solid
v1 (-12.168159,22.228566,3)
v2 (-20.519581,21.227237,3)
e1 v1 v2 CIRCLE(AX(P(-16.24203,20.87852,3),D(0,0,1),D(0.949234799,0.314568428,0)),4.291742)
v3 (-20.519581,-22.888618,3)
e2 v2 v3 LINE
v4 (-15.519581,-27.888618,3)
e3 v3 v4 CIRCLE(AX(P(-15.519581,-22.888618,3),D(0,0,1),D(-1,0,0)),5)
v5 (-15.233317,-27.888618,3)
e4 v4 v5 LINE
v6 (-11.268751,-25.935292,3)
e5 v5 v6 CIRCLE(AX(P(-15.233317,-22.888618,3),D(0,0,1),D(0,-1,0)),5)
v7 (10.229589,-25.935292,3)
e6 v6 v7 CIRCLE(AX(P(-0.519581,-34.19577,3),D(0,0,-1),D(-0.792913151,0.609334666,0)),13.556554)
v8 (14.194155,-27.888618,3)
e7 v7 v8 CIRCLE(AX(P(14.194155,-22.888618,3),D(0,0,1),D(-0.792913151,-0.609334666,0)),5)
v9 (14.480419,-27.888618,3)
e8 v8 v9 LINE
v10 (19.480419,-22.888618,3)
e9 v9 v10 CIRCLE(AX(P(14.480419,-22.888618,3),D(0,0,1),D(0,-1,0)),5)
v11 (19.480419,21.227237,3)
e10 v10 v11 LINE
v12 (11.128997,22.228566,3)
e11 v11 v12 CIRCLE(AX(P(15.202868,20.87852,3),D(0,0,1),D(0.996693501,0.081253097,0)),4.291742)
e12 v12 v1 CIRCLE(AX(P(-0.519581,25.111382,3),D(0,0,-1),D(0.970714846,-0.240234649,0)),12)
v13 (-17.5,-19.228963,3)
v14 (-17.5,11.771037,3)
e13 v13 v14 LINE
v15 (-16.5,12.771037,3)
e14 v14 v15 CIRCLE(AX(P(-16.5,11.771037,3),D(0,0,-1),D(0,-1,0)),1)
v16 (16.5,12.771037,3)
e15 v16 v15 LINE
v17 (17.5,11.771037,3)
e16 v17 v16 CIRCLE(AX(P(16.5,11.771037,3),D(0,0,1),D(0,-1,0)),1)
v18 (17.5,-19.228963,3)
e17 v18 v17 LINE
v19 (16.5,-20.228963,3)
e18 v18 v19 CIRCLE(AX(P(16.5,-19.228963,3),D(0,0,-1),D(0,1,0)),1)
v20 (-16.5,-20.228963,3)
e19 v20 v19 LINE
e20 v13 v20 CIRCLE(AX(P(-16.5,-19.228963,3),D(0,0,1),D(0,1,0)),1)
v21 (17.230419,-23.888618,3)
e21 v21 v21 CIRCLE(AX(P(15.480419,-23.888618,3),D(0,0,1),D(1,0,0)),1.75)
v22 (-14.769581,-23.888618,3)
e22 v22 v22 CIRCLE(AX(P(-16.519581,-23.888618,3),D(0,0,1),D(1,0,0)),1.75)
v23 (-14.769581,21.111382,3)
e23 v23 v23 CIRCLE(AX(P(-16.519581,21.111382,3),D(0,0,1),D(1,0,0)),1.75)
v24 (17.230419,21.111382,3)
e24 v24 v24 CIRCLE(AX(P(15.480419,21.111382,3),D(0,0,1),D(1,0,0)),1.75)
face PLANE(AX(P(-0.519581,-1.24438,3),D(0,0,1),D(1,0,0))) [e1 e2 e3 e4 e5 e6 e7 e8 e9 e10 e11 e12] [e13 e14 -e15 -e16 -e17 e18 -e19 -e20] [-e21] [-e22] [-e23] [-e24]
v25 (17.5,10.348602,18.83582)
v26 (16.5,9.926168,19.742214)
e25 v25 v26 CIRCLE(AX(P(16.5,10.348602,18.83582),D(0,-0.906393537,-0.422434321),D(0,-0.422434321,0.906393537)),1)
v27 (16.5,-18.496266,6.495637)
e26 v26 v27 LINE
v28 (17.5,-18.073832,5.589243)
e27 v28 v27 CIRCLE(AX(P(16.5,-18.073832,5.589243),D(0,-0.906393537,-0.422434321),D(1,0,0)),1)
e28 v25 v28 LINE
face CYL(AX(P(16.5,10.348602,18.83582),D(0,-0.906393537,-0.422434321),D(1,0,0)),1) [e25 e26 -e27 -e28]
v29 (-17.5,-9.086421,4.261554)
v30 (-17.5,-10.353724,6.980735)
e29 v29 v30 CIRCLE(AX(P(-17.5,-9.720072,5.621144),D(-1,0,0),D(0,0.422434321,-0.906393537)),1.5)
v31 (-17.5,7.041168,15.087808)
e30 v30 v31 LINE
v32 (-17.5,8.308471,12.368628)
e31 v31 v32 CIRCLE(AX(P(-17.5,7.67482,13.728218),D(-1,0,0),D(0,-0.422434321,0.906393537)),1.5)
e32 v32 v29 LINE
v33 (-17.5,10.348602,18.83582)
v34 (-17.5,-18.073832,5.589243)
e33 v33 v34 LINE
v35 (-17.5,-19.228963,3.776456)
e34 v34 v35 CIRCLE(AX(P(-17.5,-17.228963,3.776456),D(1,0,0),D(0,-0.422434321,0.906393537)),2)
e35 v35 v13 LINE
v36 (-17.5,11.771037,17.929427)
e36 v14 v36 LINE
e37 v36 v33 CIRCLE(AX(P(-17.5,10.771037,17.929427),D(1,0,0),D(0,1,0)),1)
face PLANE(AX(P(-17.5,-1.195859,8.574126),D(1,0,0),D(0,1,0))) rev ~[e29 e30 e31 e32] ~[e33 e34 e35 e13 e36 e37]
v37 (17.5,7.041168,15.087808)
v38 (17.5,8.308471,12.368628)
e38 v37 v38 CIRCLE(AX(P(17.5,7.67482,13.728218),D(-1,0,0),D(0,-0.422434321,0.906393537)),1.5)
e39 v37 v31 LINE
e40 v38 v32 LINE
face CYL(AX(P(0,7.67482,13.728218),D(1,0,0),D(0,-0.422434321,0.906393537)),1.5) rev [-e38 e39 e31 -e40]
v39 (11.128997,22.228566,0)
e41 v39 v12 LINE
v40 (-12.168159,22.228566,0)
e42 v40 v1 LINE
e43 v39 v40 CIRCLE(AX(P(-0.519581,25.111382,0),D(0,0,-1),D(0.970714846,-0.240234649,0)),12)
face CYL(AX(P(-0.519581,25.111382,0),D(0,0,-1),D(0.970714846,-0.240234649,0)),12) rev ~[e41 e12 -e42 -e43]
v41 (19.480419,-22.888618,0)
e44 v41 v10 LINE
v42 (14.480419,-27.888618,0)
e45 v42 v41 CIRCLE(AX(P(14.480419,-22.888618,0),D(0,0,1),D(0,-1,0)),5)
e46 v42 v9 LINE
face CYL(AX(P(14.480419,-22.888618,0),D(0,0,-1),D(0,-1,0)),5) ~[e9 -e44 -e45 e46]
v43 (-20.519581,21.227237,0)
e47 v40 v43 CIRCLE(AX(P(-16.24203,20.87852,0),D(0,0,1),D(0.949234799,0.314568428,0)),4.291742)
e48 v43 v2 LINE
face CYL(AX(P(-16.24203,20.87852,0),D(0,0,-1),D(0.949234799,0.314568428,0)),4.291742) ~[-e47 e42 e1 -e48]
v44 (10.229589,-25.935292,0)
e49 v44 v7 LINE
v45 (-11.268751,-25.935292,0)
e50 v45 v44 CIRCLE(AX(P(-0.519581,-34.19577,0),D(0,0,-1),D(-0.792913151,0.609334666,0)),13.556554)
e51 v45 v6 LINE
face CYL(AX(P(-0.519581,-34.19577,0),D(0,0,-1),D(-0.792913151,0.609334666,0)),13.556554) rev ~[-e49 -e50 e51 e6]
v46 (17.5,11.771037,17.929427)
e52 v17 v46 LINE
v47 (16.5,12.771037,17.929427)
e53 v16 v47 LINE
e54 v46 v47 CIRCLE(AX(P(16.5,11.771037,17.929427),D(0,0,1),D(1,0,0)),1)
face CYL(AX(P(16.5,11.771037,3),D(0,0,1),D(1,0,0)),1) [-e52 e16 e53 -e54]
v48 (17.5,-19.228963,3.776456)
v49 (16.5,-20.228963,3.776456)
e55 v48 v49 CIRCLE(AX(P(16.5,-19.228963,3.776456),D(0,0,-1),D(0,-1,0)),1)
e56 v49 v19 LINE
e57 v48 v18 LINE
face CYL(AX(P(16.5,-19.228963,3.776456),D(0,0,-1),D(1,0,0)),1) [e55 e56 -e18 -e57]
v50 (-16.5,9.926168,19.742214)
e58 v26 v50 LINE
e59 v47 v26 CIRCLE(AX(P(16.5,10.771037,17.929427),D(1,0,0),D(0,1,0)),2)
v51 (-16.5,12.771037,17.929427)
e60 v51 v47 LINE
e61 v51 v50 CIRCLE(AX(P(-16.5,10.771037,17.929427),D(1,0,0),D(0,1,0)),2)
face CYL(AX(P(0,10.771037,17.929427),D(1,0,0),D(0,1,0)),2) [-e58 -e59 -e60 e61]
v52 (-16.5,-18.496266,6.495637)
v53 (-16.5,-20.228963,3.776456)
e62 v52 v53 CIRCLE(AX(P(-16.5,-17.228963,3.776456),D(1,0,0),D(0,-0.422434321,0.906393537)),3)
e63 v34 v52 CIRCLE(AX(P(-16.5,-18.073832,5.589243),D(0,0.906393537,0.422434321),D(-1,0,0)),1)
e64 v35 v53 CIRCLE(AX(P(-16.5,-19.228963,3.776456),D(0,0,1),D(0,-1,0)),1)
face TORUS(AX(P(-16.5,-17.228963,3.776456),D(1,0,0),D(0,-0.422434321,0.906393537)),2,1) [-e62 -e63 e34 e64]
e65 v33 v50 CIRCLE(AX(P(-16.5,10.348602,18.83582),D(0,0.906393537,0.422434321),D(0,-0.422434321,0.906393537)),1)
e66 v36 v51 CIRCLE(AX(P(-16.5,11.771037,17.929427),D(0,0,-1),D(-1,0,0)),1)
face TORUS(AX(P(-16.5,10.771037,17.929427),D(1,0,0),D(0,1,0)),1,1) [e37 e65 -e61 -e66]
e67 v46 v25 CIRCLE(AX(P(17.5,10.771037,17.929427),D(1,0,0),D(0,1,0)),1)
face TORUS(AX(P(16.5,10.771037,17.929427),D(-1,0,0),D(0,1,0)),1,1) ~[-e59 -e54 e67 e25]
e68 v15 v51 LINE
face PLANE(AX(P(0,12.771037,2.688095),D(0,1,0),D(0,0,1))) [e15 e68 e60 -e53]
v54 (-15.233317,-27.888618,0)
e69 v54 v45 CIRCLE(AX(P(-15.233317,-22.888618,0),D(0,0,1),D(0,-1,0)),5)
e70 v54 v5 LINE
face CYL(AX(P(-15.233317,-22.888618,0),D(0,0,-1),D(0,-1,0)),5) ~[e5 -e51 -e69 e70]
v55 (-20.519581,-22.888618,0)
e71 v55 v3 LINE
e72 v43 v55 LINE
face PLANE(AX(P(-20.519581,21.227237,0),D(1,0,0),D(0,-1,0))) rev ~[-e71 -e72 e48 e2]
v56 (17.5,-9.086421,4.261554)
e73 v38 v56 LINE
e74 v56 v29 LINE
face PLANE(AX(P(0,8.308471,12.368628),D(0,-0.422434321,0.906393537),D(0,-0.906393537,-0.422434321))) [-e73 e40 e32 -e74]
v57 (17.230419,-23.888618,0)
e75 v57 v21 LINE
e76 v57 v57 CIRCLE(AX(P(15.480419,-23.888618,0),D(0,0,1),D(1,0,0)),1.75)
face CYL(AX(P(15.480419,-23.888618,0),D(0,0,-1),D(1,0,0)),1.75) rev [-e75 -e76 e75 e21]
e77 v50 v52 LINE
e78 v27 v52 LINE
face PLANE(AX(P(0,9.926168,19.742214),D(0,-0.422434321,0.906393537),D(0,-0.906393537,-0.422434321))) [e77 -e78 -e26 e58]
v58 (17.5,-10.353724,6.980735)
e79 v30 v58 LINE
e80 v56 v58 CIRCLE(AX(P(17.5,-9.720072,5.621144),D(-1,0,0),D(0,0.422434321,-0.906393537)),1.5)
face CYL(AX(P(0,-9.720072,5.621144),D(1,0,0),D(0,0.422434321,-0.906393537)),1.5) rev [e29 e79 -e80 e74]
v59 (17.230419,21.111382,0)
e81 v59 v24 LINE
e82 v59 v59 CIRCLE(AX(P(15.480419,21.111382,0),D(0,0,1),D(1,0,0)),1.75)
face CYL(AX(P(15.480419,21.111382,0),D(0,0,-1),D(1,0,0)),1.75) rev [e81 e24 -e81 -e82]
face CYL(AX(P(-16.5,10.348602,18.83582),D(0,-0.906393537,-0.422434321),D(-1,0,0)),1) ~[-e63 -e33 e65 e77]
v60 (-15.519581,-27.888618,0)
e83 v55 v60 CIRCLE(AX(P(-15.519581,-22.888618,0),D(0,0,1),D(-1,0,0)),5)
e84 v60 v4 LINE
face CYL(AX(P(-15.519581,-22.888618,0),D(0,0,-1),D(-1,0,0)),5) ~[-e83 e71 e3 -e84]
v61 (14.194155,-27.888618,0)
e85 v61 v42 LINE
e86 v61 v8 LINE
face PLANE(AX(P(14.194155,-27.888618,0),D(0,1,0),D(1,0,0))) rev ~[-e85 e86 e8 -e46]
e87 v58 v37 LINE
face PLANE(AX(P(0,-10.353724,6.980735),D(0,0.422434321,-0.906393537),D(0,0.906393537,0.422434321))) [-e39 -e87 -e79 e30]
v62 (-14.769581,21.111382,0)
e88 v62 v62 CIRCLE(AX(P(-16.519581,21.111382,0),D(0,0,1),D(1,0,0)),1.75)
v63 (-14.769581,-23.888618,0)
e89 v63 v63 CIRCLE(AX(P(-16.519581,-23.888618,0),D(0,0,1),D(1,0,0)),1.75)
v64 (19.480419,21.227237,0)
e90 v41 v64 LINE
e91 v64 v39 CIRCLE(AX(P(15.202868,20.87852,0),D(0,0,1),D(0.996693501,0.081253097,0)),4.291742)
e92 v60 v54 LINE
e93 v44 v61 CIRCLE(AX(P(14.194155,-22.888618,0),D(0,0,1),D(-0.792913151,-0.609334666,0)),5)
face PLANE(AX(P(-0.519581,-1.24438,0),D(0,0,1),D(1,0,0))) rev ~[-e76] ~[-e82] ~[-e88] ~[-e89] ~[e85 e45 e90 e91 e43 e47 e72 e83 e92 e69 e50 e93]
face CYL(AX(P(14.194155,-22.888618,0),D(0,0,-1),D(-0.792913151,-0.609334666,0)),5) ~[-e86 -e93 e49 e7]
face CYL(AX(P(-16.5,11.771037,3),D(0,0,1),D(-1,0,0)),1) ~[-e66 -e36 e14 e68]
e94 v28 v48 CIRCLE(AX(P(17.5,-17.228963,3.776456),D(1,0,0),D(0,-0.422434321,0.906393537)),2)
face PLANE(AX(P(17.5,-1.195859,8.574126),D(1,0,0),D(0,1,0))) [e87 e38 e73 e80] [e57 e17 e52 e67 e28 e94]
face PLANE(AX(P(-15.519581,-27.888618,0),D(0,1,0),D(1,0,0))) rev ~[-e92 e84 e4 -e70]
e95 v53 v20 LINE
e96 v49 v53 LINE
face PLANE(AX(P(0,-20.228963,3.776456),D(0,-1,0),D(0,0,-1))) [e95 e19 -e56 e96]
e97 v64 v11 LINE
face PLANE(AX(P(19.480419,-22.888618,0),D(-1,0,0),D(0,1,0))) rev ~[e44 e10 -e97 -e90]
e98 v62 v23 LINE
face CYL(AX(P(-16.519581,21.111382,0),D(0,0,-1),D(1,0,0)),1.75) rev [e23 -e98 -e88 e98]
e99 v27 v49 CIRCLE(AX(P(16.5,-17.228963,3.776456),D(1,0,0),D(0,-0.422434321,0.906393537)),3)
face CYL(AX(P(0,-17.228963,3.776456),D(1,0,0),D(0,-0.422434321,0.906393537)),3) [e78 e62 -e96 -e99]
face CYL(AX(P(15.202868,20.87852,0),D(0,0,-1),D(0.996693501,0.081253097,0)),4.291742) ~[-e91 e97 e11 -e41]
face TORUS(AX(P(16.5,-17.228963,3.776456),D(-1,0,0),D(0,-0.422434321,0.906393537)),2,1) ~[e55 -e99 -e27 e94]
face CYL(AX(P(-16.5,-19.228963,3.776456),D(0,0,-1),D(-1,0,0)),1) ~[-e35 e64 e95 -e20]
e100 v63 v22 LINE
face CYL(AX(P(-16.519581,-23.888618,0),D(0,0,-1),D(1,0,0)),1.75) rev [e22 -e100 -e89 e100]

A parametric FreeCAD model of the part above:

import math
import FreeCAD as App
import Part
import Sketcher
from FreeCAD import Vector


def edges_at(feature, points):
    """Names of the edges that pass closest to the given points."""
    edges = feature.Shape.Edges
    near = lambda p: min(range(len(edges)), key=lambda i: edges[i].distToShape(Part.Vertex(*p))[0])
    return sorted({f"Edge{near(p) + 1}" for p in points})

doc = App.newDocument("Part")
body = doc.addObject("PartDesign::Body", "Body")

# Sketch on XY plane
sketch1 = body.newObject("Sketcher::SketchObject", "Sketch")
sketch1.AttachmentSupport = (doc.getObject("XY_Plane"), [""])
sketch1.MapMode = "FlatFace"
sketch1.addGeometry([
    Part.ArcOfCircle(Part.Circle(Vector(-15.519581, -22.888618, 0), Vector(0, 0, 1), 5), math.radians(180), math.radians(270)),  # 0
    Part.LineSegment(Vector(-15.519581, -27.888618, 0), Vector(-15.233317, -27.888618, 0)),  # 1
    Part.ArcOfCircle(Part.Circle(Vector(-15.233317, -22.888618, 0), Vector(0, 0, 1), 5), math.radians(-90), math.radians(-37.54141)),  # 2
    Part.ArcOfCircle(Part.Circle(Vector(-0.519581, -34.19577, 0), Vector(0, 0, 1), 13.556554), math.radians(37.541411), math.radians(142.458589)),  # 3
    Part.ArcOfCircle(Part.Circle(Vector(14.194155, -22.888618, 0), Vector(0, 0, 1), 5), math.radians(-142.458589), math.radians(-90)),  # 4
    Part.LineSegment(Vector(14.194155, -27.888618, 0), Vector(14.480419, -27.888618, 0)),  # 5
    Part.ArcOfCircle(Part.Circle(Vector(14.480419, -22.888618, 0), Vector(0, 0, 1), 5), math.radians(-90), math.radians(0)),  # 6
    Part.LineSegment(Vector(19.480419, -22.888618, 0), Vector(19.480419, 21.227237, 0)),  # 7
    Part.ArcOfCircle(Part.Circle(Vector(15.202868, 20.87852, 0), Vector(0, 0, 1), 4.291742), math.radians(4.660597), math.radians(161.665238)),  # 8
    Part.ArcOfCircle(Part.Circle(Vector(-0.519581, 25.111382, 0), Vector(0, 0, 1), 12), math.radians(-166.09961), math.radians(-13.90039)),  # 9
    Part.ArcOfCircle(Part.Circle(Vector(-16.24203, 20.87852, 0), Vector(0, 0, 1), 4.291742), math.radians(18.334762), math.radians(175.339403)),  # 10
    Part.LineSegment(Vector(-20.519581, 21.227237, 0), Vector(-20.519581, -22.888618, 0)),  # 11
    Part.Circle(Vector(-16.519581, -23.888618, 0), Vector(0, 0, 1), 1.75),  # 12
    Part.Circle(Vector(15.480419, -23.888618, 0), Vector(0, 0, 1), 1.75),  # 13
    Part.Circle(Vector(-16.519581, 21.111382, 0), Vector(0, 0, 1), 1.75),  # 14
    Part.Circle(Vector(15.480419, 21.111382, 0), Vector(0, 0, 1), 1.75),  # 15
], False)
sketch1.addConstraint([
    Sketcher.Constraint("Tangent", 0, 2, 1, 1),
    Sketcher.Constraint("Tangent", 1, 2, 2, 1),
    Sketcher.Constraint("Tangent", 2, 2, 3, 2),
    Sketcher.Constraint("Tangent", 3, 1, 4, 1),
    Sketcher.Constraint("Tangent", 4, 2, 5, 1),
    Sketcher.Constraint("Tangent", 5, 2, 6, 1),
    Sketcher.Constraint("Tangent", 6, 2, 7, 1),
    Sketcher.Constraint("Coincident", 7, 2, 8, 1),
    Sketcher.Constraint("Coincident", 8, 2, 9, 2),
    Sketcher.Constraint("Coincident", 9, 1, 10, 1),
    Sketcher.Constraint("Coincident", 10, 2, 11, 1),
    Sketcher.Constraint("Tangent", 11, 2, 0, 1),
    Sketcher.Constraint("Horizontal", 1),
    Sketcher.Constraint("Horizontal", 5),
    Sketcher.Constraint("Vertical", 7),
    Sketcher.Constraint("Vertical", 11),
    Sketcher.Constraint("Equal", 0, 2),
    Sketcher.Constraint("Equal", 2, 4),
    Sketcher.Constraint("Equal", 4, 6),
    Sketcher.Constraint("Equal", 8, 10),
    Sketcher.Constraint("Equal", 12, 13),
    Sketcher.Constraint("Equal", 13, 14),
    Sketcher.Constraint("Equal", 14, 15),
    Sketcher.Constraint("Horizontal", 2, 3, 4, 3),
    Sketcher.Constraint("Horizontal", 8, 3, 10, 3),
    Sketcher.Constraint("Horizontal", 12, 3, 13, 3),
    Sketcher.Constraint("Horizontal", 14, 3, 15, 3),
    Sketcher.Constraint("Horizontal", 8, 2, 9, 1),
    Sketcher.Constraint("Horizontal", 7, 2, 10, 2),
    Sketcher.Constraint("Vertical", 3, 3, 9, 3),
    Sketcher.Constraint("Vertical", 12, 3, 14, 3),
    Sketcher.Constraint("Vertical", 13, 3, 15, 3),
    Sketcher.Constraint("Radius", 0, 5.0),
    Sketcher.Constraint("Radius", 9, 12.0),
    Sketcher.Constraint("Diameter", 12, 3.5),
    Sketcher.Constraint("DistanceX", 0, 3, 3, 3, 15.0),
    Sketcher.Constraint("DistanceY", 2, 3, 9, 3, 48.0),
    Sketcher.Constraint("DistanceX", 12, 3, 0, 3, 1.0),
    Sketcher.Constraint("DistanceY", 12, 3, 0, 3, 1.0),
    Sketcher.Constraint("DistanceX", 6, 3, 13, 3, 1.0),
    Sketcher.Constraint("DistanceY", 14, 3, 9, 3, 4.0),
    Sketcher.Constraint("Radius", 8, 4.291742),
    Sketcher.Constraint("Radius", 3, 13.556554),
    Sketcher.Constraint("DistanceX", 1, 1, 1, 2, 0.286264),
    Sketcher.Constraint("DistanceY", 7, 1, 7, 2, 44.115855),
    Sketcher.Constraint("DistanceX", 0, 3, -1, 1, 15.519581),
    Sketcher.Constraint("DistanceY", 0, 3, -1, 1, 22.888618),
    Sketcher.Constraint("DistanceX", -1, 1, 8, 3, 15.202868),
])
pad1 = body.newObject("PartDesign::Pad", "Pad")
pad1.Profile = sketch1
pad1.Length = 3

# Sketch on YZ plane
sketch2 = body.newObject("Sketcher::SketchObject", "Sketch001")
sketch2.AttachmentSupport = (doc.getObject("YZ_Plane"), [""])
sketch2.MapMode = "FlatFace"
sketch2.addGeometry([
    Part.LineSegment(Vector(-20.228963, 3.776456, 0), Vector(-20.228963, 2.688095, 0)),  # 0
    Part.LineSegment(Vector(-20.228963, 2.688095, 0), Vector(12.771037, 2.688095, 0)),  # 1
    Part.LineSegment(Vector(12.771037, 2.688095, 0), Vector(12.771037, 17.929427, 0)),  # 2
    Part.ArcOfCircle(Part.Circle(Vector(10.771037, 17.929427, 0), Vector(0, 0, 1), 2), math.radians(0), math.radians(114.988372)),  # 3
    Part.LineSegment(Vector(9.926168, 19.742214, 0), Vector(-18.496266, 6.495637, 0)),  # 4
    Part.ArcOfCircle(Part.Circle(Vector(-17.228963, 3.776456, 0), Vector(0, 0, 1), 3), math.radians(114.988372), math.radians(180)),  # 5
    Part.ArcOfCircle(Part.Circle(Vector(-9.720072, 5.621144, 0), Vector(0, 0, 1), 1.5), math.radians(114.988372), math.radians(294.988372)),  # 6
    Part.LineSegment(Vector(-10.353724, 6.980735, 0), Vector(7.041168, 15.087808, 0)),  # 7
    Part.ArcOfCircle(Part.Circle(Vector(7.67482, 13.728218, 0), Vector(0, 0, 1), 1.5), math.radians(-65.011628), math.radians(114.988372)),  # 8
    Part.LineSegment(Vector(8.308471, 12.368628, 0), Vector(-9.086421, 4.261554, 0)),  # 9
], False)
sketch2.addConstraint([
    Sketcher.Constraint("Coincident", 0, 2, 1, 1),
    Sketcher.Constraint("Coincident", 1, 2, 2, 1),
    Sketcher.Constraint("Tangent", 2, 2, 3, 1),
    Sketcher.Constraint("Tangent", 3, 2, 4, 1),
    Sketcher.Constraint("Tangent", 4, 2, 5, 1),
    Sketcher.Constraint("Tangent", 5, 2, 0, 1),
    Sketcher.Constraint("Tangent", 6, 1, 7, 1),
    Sketcher.Constraint("Tangent", 7, 2, 8, 2),
    Sketcher.Constraint("Tangent", 8, 1, 9, 1),
    Sketcher.Constraint("Tangent", 9, 2, 6, 2),
    Sketcher.Constraint("Vertical", 0),
    Sketcher.Constraint("Horizontal", 1),
    Sketcher.Constraint("Vertical", 2),
    Sketcher.Constraint("Equal", 6, 8),
    Sketcher.Constraint("Parallel", 4, 7),
    Sketcher.Constraint("Radius", 3, 2.0),
    Sketcher.Constraint("Radius", 5, 3.0),
    Sketcher.Constraint("Radius", 6, 1.5),
    Sketcher.Constraint("DistanceX", 1, 1, 1, 2, 33.0),
    Sketcher.Constraint("DistanceX", 7, 2, 3, 2, 2.885),
    Sketcher.Constraint("DistanceY", 0, 2, 0, 1, 1.088361),
    Sketcher.Constraint("DistanceY", 2, 1, 2, 2, 15.241332),
    Sketcher.Constraint("DistanceY", 8, 1, 3, 3, 5.560799),
    Sketcher.Constraint("DistanceX", -1, 1, 8, 3, 7.67482),
    Sketcher.Constraint("DistanceY", -1, 1, 8, 3, 13.728218),
    Sketcher.Constraint("DistanceX", 9, 2, -1, 1, 9.086421),
])
pad2 = body.newObject("PartDesign::Pad", "Pad001")
pad2.Profile = sketch2
pad2.Length = 35
pad2.Midplane = True
doc.recompute()

fillet = body.newObject("PartDesign::Fillet", "Fillet")
fillet.Base = (pad2, edges_at(pad2, [(17.5, -4.285, 13.119), (-17.5, -4.285, 13.119)]))
fillet.Radius = 1

doc.recompute()
